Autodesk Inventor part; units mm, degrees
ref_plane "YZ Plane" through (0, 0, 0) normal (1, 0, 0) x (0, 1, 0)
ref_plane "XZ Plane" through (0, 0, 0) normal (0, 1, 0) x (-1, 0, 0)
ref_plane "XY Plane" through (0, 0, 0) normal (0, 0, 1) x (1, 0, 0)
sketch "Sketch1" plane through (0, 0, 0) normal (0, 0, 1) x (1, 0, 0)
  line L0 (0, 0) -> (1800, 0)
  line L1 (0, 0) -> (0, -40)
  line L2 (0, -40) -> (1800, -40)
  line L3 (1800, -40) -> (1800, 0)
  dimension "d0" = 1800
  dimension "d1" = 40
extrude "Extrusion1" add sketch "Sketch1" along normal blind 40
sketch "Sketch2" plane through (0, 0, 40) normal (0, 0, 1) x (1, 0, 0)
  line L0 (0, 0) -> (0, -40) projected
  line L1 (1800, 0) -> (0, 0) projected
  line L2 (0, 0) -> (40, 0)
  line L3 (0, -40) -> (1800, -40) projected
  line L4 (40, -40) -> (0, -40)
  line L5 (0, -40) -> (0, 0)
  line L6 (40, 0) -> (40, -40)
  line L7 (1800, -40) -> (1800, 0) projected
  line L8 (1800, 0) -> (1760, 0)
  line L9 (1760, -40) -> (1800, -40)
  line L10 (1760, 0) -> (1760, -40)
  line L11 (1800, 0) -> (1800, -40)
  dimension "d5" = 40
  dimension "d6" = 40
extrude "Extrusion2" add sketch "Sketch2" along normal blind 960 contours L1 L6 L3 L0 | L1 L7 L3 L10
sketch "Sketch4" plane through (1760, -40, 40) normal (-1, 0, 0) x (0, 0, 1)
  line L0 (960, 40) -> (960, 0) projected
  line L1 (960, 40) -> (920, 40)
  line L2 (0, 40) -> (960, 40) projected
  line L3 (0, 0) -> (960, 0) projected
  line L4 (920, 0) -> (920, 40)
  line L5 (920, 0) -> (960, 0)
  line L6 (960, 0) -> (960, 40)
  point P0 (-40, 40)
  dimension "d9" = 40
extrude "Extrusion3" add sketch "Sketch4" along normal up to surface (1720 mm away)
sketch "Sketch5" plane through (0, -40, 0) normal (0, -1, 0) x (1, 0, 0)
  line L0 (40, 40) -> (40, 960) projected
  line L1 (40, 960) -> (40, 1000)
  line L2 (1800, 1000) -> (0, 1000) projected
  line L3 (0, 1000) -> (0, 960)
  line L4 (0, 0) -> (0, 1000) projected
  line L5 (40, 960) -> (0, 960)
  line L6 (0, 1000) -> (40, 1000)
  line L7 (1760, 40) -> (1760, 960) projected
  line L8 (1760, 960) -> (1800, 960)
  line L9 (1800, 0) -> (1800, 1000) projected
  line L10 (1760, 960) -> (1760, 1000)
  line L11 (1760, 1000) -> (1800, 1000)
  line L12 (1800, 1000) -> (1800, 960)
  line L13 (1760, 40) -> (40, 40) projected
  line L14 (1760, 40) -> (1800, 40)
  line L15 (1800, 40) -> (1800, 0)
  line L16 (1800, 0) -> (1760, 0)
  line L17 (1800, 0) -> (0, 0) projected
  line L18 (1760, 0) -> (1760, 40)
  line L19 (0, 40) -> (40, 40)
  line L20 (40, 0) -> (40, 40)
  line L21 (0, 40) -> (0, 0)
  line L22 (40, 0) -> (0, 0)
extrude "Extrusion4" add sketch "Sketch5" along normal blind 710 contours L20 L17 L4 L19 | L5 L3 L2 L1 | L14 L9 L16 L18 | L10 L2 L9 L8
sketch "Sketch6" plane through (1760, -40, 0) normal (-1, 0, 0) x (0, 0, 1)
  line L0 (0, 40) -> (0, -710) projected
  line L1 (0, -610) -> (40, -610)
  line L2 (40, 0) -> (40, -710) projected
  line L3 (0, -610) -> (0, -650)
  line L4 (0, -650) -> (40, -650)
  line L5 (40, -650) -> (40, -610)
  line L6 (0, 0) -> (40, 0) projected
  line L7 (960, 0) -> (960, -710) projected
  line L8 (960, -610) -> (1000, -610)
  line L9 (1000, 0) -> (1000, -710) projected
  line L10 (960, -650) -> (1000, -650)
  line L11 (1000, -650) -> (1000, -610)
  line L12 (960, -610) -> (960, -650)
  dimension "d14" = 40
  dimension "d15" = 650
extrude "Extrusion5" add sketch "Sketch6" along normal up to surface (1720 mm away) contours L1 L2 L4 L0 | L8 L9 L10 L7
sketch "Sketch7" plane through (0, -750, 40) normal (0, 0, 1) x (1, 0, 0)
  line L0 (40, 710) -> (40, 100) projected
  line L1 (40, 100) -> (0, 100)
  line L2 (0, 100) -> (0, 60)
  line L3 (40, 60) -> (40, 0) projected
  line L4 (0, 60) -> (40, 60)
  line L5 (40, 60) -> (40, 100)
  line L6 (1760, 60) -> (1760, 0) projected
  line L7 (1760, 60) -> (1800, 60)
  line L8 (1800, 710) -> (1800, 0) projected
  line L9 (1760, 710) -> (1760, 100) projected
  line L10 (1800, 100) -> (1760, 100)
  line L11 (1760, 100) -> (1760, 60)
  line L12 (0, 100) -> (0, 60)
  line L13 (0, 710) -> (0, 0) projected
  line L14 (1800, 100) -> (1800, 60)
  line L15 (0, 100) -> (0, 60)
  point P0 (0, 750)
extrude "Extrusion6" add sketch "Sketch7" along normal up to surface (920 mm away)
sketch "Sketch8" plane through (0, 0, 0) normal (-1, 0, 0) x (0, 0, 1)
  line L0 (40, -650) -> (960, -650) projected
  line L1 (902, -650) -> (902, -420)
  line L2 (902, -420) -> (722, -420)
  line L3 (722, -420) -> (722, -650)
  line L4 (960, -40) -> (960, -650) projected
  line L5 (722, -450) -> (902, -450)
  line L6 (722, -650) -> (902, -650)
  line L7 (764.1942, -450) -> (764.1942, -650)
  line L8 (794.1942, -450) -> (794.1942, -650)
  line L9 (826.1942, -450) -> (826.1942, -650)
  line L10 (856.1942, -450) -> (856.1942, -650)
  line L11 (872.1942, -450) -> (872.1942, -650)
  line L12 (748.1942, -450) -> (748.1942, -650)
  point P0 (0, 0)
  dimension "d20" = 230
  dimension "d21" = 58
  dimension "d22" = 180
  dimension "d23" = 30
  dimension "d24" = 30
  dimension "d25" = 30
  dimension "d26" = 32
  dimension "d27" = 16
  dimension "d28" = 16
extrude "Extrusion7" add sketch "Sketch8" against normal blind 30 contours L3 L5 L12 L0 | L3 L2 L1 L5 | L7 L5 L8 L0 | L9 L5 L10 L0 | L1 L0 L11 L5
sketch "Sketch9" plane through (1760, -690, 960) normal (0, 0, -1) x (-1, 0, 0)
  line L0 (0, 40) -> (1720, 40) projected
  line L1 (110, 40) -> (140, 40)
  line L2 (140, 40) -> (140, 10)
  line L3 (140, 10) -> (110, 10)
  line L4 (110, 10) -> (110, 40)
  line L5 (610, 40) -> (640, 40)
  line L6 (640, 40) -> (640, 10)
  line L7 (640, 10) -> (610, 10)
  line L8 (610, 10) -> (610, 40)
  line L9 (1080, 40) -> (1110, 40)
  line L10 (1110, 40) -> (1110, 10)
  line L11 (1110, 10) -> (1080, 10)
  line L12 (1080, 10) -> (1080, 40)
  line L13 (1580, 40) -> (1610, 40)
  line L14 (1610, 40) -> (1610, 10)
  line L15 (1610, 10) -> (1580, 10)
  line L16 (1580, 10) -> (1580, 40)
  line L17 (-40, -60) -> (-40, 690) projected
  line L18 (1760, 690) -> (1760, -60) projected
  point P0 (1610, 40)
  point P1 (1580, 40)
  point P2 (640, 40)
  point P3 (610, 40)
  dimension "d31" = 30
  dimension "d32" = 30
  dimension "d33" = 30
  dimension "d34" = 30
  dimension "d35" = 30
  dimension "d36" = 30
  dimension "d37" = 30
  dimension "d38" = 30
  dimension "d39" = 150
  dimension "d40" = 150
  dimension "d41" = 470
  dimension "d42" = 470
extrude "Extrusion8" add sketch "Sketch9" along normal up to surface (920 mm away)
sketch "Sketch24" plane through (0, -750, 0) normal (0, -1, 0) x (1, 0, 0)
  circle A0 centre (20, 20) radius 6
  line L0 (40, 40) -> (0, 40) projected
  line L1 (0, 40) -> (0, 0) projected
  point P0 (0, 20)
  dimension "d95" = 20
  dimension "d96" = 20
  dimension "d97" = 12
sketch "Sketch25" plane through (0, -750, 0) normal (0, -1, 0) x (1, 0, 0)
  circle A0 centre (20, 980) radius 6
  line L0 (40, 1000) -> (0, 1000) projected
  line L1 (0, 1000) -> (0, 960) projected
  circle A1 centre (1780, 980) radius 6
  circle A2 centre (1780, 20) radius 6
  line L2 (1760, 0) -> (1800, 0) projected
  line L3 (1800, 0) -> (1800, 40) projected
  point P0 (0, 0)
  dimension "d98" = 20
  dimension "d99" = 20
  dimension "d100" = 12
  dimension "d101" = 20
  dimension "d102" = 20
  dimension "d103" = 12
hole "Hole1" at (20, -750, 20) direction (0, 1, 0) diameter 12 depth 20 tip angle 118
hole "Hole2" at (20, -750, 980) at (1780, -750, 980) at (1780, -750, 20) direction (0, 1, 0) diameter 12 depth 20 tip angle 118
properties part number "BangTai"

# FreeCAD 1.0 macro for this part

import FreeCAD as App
import Part
import Sketcher


def add_polygon(sketch, points):
    """Adds a closed chain of lines whose ends are joined by coincident constraints."""
    first, n = sketch.GeometryCount, len(points)
    for a, b in zip(points, points[1:] + points[:1]):
        sketch.addGeometry(Part.LineSegment(App.Vector(*a, 0), App.Vector(*b, 0)), False)
    for i in range(n):
        sketch.addConstraint(Sketcher.Constraint("Coincident", first + i, 2, first + (i + 1) % n, 1))

doc = App.newDocument("Part")
body = doc.addObject("PartDesign::Body", "Body")

# Sketch on XY plane
sketch1 = body.newObject("Sketcher::SketchObject", "Sketch")
sketch1.AttachmentSupport = (doc.getObject("XY_Plane"), [""])
sketch1.MapMode = "FlatFace"
add_polygon(sketch1, [(1800, 0), (0, 0), (0, -40), (1800, -40)])  # lines 0-3
sketch1.addConstraint(Sketcher.Constraint("Horizontal", 0))
sketch1.addConstraint(Sketcher.Constraint("Vertical", 1))
sketch1.addConstraint(Sketcher.Constraint("Horizontal", 2))
sketch1.addConstraint(Sketcher.Constraint("Vertical", 3))
sketch1.addConstraint(Sketcher.Constraint("Coincident", 0, 2, -1, 1))
sketch1.addConstraint(Sketcher.Constraint("DistanceX", 0, 2, 0, 1, 1800.0))
sketch1.addConstraint(Sketcher.Constraint("DistanceY", 1, 2, 1, 1, 40.0))
pad1 = body.newObject("PartDesign::Pad", "Pad")
pad1.Profile = sketch1
pad1.Length = 40

# Sketch on XY plane
sketch2 = body.newObject("Sketcher::SketchObject", "Sketch001")
sketch2.AttachmentSupport = (doc.getObject("XY_Plane"), [""])
sketch2.MapMode = "FlatFace"
sketch2.AttachmentOffset = App.Placement(App.Vector(0, 0, 40), App.Rotation())
add_polygon(sketch2, [(40, 0), (0, 0), (0, -40), (40, -40)])  # lines 0-3
add_polygon(sketch2, [(1800, 0), (1760, 0), (1760, -40), (1800, -40)])  # lines 4-7
sketch2.addConstraint(Sketcher.Constraint("Horizontal", 0))
sketch2.addConstraint(Sketcher.Constraint("Vertical", 1))
sketch2.addConstraint(Sketcher.Constraint("Horizontal", 2))
sketch2.addConstraint(Sketcher.Constraint("Vertical", 3))
sketch2.addConstraint(Sketcher.Constraint("Horizontal", 4))
sketch2.addConstraint(Sketcher.Constraint("Vertical", 5))
sketch2.addConstraint(Sketcher.Constraint("Horizontal", 6))
sketch2.addConstraint(Sketcher.Constraint("Vertical", 7))
sketch2.addConstraint(Sketcher.Constraint("Coincident", 0, 2, -1, 1))
sketch2.addConstraint(Sketcher.Constraint("PointOnObject", 4, 2, -1))
sketch2.addConstraint(Sketcher.Constraint("Horizontal", 2, 2, 5, 2))
sketch2.addConstraint(Sketcher.Constraint("Equal", 2, 4))
sketch2.addConstraint(Sketcher.Constraint("Equal", 6, 1))
sketch2.addConstraint(Sketcher.Constraint("DistanceX", 0, 2, 0, 1, 40.0))
sketch2.addConstraint(Sketcher.Constraint("DistanceX", -1, 1, 4, 2, 1760.0))
pad2 = body.newObject("PartDesign::Pad", "Pad001")
pad2.Profile = sketch2
pad2.Length = 960

# Sketch on YZ plane
sketch3 = body.newObject("Sketcher::SketchObject", "Sketch002")
sketch3.AttachmentSupport = (doc.getObject("YZ_Plane"), [""])
sketch3.MapMode = "FlatFace"
sketch3.AttachmentOffset = App.Placement(App.Vector(0, 0, 1760), App.Rotation())
add_polygon(sketch3, [(-40, 1000), (0, 1000), (0, 960), (-40, 960)])  # lines 0-3
sketch3.addConstraint(Sketcher.Constraint("Horizontal", 0))
sketch3.addConstraint(Sketcher.Constraint("Vertical", 1))
sketch3.addConstraint(Sketcher.Constraint("Horizontal", 2))
sketch3.addConstraint(Sketcher.Constraint("Vertical", 3))
sketch3.addConstraint(Sketcher.Constraint("PointOnObject", 0, 2, -2))
sketch3.addConstraint(Sketcher.Constraint("Equal", 2, 1))
sketch3.addConstraint(Sketcher.Constraint("DistanceX", 0, 1, 0, 2, 40.0))
sketch3.addConstraint(Sketcher.Constraint("DistanceY", -1, 1, 0, 2, 1000.0))
pad3 = body.newObject("PartDesign::Pad", "Pad002")
pad3.Profile = sketch3
pad3.Length = 1720
pad3.Reversed = True

# Sketch on XZ plane
sketch4 = body.newObject("Sketcher::SketchObject", "Sketch003")
sketch4.AttachmentSupport = (doc.getObject("XZ_Plane"), [""])
sketch4.MapMode = "FlatFace"
sketch4.AttachmentOffset = App.Placement(App.Vector(0, 0, 40), App.Rotation())
add_polygon(sketch4, [(40, 0), (40, 40), (0, 40), (0, 0)])  # lines 0-3
add_polygon(sketch4, [(0, 960), (40, 960), (40, 1000), (0, 1000)])  # lines 4-7
add_polygon(sketch4, [(1800, 40), (1760, 40), (1760, 0), (1800, 0)])  # lines 8-11
add_polygon(sketch4, [(1760, 1000), (1760, 960), (1800, 960), (1800, 1000)])  # lines 12-15
sketch4.addConstraint(Sketcher.Constraint("Vertical", 0))
sketch4.addConstraint(Sketcher.Constraint("Horizontal", 1))
sketch4.addConstraint(Sketcher.Constraint("Vertical", 2))
sketch4.addConstraint(Sketcher.Constraint("Horizontal", 3))
sketch4.addConstraint(Sketcher.Constraint("Horizontal", 4))
sketch4.addConstraint(Sketcher.Constraint("Vertical", 5))
sketch4.addConstraint(Sketcher.Constraint("Horizontal", 6))
sketch4.addConstraint(Sketcher.Constraint("Vertical", 7))
sketch4.addConstraint(Sketcher.Constraint("Horizontal", 8))
sketch4.addConstraint(Sketcher.Constraint("Vertical", 9))
sketch4.addConstraint(Sketcher.Constraint("Horizontal", 10))
sketch4.addConstraint(Sketcher.Constraint("Vertical", 11))
sketch4.addConstraint(Sketcher.Constraint("Vertical", 12))
sketch4.addConstraint(Sketcher.Constraint("Horizontal", 13))
sketch4.addConstraint(Sketcher.Constraint("Vertical", 14))
sketch4.addConstraint(Sketcher.Constraint("Horizontal", 15))
sketch4.addConstraint(Sketcher.Constraint("Coincident", 2, 2, -1, 1))
sketch4.addConstraint(Sketcher.Constraint("PointOnObject", 6, 2, -2))
sketch4.addConstraint(Sketcher.Constraint("PointOnObject", 9, 2, -1))
sketch4.addConstraint(Sketcher.Constraint("Horizontal", 1, 2, 8, 2))
sketch4.addConstraint(Sketcher.Constraint("Horizontal", 7, 2, 12, 2))
sketch4.addConstraint(Sketcher.Constraint("Horizontal", 6, 2, 14, 2))
sketch4.addConstraint(Sketcher.Constraint("Vertical", 3, 2, 4, 2))
sketch4.addConstraint(Sketcher.Constraint("Vertical", 9, 2, 12, 2))
sketch4.addConstraint(Sketcher.Constraint("Vertical", 11, 2, 13, 2))
sketch4.addConstraint(Sketcher.Constraint("Equal", 6, 8))
sketch4.addConstraint(Sketcher.Constraint("Equal", 15, 0))
sketch4.addConstraint(Sketcher.Constraint("Equal", 2, 5))
sketch4.addConstraint(Sketcher.Constraint("DistanceX", 1, 2, 1, 1, 40.0))
sketch4.addConstraint(Sketcher.Constraint("DistanceY", -1, 1, 4, 2, 960.0))
sketch4.addConstraint(Sketcher.Constraint("DistanceX", -1, 1, 8, 2, 1760.0))
pad4 = body.newObject("PartDesign::Pad", "Pad003")
pad4.Profile = sketch4
pad4.Length = 710

# Sketch on YZ plane
sketch5 = body.newObject("Sketcher::SketchObject", "Sketch004")
sketch5.AttachmentSupport = (doc.getObject("YZ_Plane"), [""])
sketch5.MapMode = "FlatFace"
sketch5.AttachmentOffset = App.Placement(App.Vector(0, 0, 1760), App.Rotation())
add_polygon(sketch5, [(-650, 40), (-650, 0), (-690, 0), (-690, 40)])  # lines 0-3
add_polygon(sketch5, [(-650, 1000), (-650, 960), (-690, 960), (-690, 1000)])  # lines 4-7
sketch5.addConstraint(Sketcher.Constraint("Vertical", 0))
sketch5.addConstraint(Sketcher.Constraint("Horizontal", 1))
sketch5.addConstraint(Sketcher.Constraint("Vertical", 2))
sketch5.addConstraint(Sketcher.Constraint("Horizontal", 3))
sketch5.addConstraint(Sketcher.Constraint("Vertical", 4))
sketch5.addConstraint(Sketcher.Constraint("Horizontal", 5))
sketch5.addConstraint(Sketcher.Constraint("Vertical", 6))
sketch5.addConstraint(Sketcher.Constraint("Horizontal", 7))
sketch5.addConstraint(Sketcher.Constraint("PointOnObject", 0, 2, -1))
sketch5.addConstraint(Sketcher.Constraint("Vertical", 3, 2, 4, 2))
sketch5.addConstraint(Sketcher.Constraint("Vertical", 2, 2, 5, 2))
sketch5.addConstraint(Sketcher.Constraint("Equal", 7, 0))
sketch5.addConstraint(Sketcher.Constraint("Equal", 2, 4))
sketch5.addConstraint(Sketcher.Constraint("DistanceX", 1, 2, 1, 1, 40.0))
sketch5.addConstraint(Sketcher.Constraint("DistanceX", 0, 2, -1, 1, 650.0))
sketch5.addConstraint(Sketcher.Constraint("DistanceY", -1, 1, 4, 2, 960.0))
pad5 = body.newObject("PartDesign::Pad", "Pad004")
pad5.Profile = sketch5
pad5.Length = 1720
pad5.Reversed = True

# Sketch on XY plane
sketch6 = body.newObject("Sketcher::SketchObject", "Sketch005")
sketch6.AttachmentSupport = (doc.getObject("XY_Plane"), [""])
sketch6.MapMode = "FlatFace"
sketch6.AttachmentOffset = App.Placement(App.Vector(0, 0, 40), App.Rotation())
add_polygon(sketch6, [(40, -690), (40, -650), (0, -650), (0, -690)])  # lines 0-3
add_polygon(sketch6, [(1760, -650), (1760, -690), (1800, -690), (1800, -650)])  # lines 4-7
sketch6.addConstraint(Sketcher.Constraint("Vertical", 0))
sketch6.addConstraint(Sketcher.Constraint("Horizontal", 1))
sketch6.addConstraint(Sketcher.Constraint("Vertical", 2))
sketch6.addConstraint(Sketcher.Constraint("Horizontal", 3))
sketch6.addConstraint(Sketcher.Constraint("Vertical", 4))
sketch6.addConstraint(Sketcher.Constraint("Horizontal", 5))
sketch6.addConstraint(Sketcher.Constraint("Vertical", 6))
sketch6.addConstraint(Sketcher.Constraint("Horizontal", 7))
sketch6.addConstraint(Sketcher.Constraint("PointOnObject", 1, 2, -2))
sketch6.addConstraint(Sketcher.Constraint("Horizontal", 3, 2, 4, 2))
sketch6.addConstraint(Sketcher.Constraint("Horizontal", 1, 2, 6, 2))
sketch6.addConstraint(Sketcher.Constraint("Equal", 3, 5))
sketch6.addConstraint(Sketcher.Constraint("Equal", 7, 0))
sketch6.addConstraint(Sketcher.Constraint("DistanceX", 1, 2, 1, 1, 40.0))
sketch6.addConstraint(Sketcher.Constraint("DistanceY", 0, 2, -1, 1, 650.0))
sketch6.addConstraint(Sketcher.Constraint("DistanceX", -1, 1, 4, 2, 1760.0))
pad6 = body.newObject("PartDesign::Pad", "Pad005")
pad6.Profile = sketch6
pad6.Length = 920

# Sketch on YZ plane
sketch7 = body.newObject("Sketcher::SketchObject", "Sketch006")
sketch7.AttachmentSupport = (doc.getObject("YZ_Plane"), [""])
sketch7.MapMode = "FlatFace"
add_polygon(sketch7, [(-650, 722), (-650, 748), (-450, 748), (-450, 764), (-650, 764), (-650, 794), (-450, 794), (-450, 826), (-650, 826), (-650, 856), (-450, 856), (-450, 872), (-650, 872), (-650, 902), (-420, 902), (-420, 722)])  # lines 0-15
sketch7.addConstraint(Sketcher.Constraint("Vertical", 0))
sketch7.addConstraint(Sketcher.Constraint("Horizontal", 1))
sketch7.addConstraint(Sketcher.Constraint("Vertical", 2))
sketch7.addConstraint(Sketcher.Constraint("Horizontal", 3))
sketch7.addConstraint(Sketcher.Constraint("Vertical", 4))
sketch7.addConstraint(Sketcher.Constraint("Horizontal", 5))
sketch7.addConstraint(Sketcher.Constraint("Vertical", 6))
sketch7.addConstraint(Sketcher.Constraint("Horizontal", 7))
sketch7.addConstraint(Sketcher.Constraint("Vertical", 8))
sketch7.addConstraint(Sketcher.Constraint("Horizontal", 9))
sketch7.addConstraint(Sketcher.Constraint("Vertical", 10))
sketch7.addConstraint(Sketcher.Constraint("Horizontal", 11))
sketch7.addConstraint(Sketcher.Constraint("Vertical", 12))
sketch7.addConstraint(Sketcher.Constraint("Horizontal", 13))
sketch7.addConstraint(Sketcher.Constraint("Vertical", 14))
sketch7.addConstraint(Sketcher.Constraint("Horizontal", 15))
sketch7.addConstraint(Sketcher.Constraint("Vertical", 0, 2, 3, 2))
sketch7.addConstraint(Sketcher.Constraint("Vertical", 2, 2, 5, 2))
sketch7.addConstraint(Sketcher.Constraint("Vertical", 4, 2, 7, 2))
sketch7.addConstraint(Sketcher.Constraint("Vertical", 6, 2, 9, 2))
sketch7.addConstraint(Sketcher.Constraint("Vertical", 8, 2, 11, 2))
sketch7.addConstraint(Sketcher.Constraint("Equal", 4, 8))
sketch7.addConstraint(Sketcher.Constraint("Equal", 2, 10))
sketch7.addConstraint(Sketcher.Constraint("DistanceX", 13, 1, 13, 2, 230.0))
sketch7.addConstraint(Sketcher.Constraint("DistanceY", 2, 1, 2, 2, 16.0))
sketch7.addConstraint(Sketcher.Constraint("DistanceY", 4, 1, 4, 2, 30.0))
sketch7.addConstraint(Sketcher.Constraint("DistanceY", 6, 1, 6, 2, 32.0))
sketch7.addConstraint(Sketcher.Constraint("DistanceY", 14, 2, 14, 1, 180.0))
sketch7.addConstraint(Sketcher.Constraint("DistanceX", 10, 2, 13, 2, 30.0))
sketch7.addConstraint(Sketcher.Constraint("DistanceX", 0, 2, -1, 1, 650.0))
sketch7.addConstraint(Sketcher.Constraint("DistanceY", -1, 1, 12, 2, 902.0))
sketch7.addConstraint(Sketcher.Constraint("DistanceY", 0, 1, 0, 2, 26.1942))
pad7 = body.newObject("PartDesign::Pad", "Pad006")
pad7.Profile = sketch7
pad7.Length = 30

# Sketch on XY plane
sketch8 = body.newObject("Sketcher::SketchObject", "Sketch007")
sketch8.AttachmentSupport = (doc.getObject("XY_Plane"), [""])
sketch8.MapMode = "FlatFace"
sketch8.AttachmentOffset = App.Placement(App.Vector(0, 0, 960), App.Rotation())
add_polygon(sketch8, [(150, -650), (180, -650), (180, -680), (150, -680)])  # lines 0-3
add_polygon(sketch8, [(650, -650), (680, -650), (680, -680), (650, -680)])  # lines 4-7
add_polygon(sketch8, [(1120, -650), (1150, -650), (1150, -680), (1120, -680)])  # lines 8-11
add_polygon(sketch8, [(1620, -650), (1650, -650), (1650, -680), (1620, -680)])  # lines 12-15
sketch8.addConstraint(Sketcher.Constraint("Horizontal", 0))
sketch8.addConstraint(Sketcher.Constraint("Vertical", 1))
sketch8.addConstraint(Sketcher.Constraint("Horizontal", 2))
sketch8.addConstraint(Sketcher.Constraint("Vertical", 3))
sketch8.addConstraint(Sketcher.Constraint("Horizontal", 4))
sketch8.addConstraint(Sketcher.Constraint("Vertical", 5))
sketch8.addConstraint(Sketcher.Constraint("Horizontal", 6))
sketch8.addConstraint(Sketcher.Constraint("Vertical", 7))
sketch8.addConstraint(Sketcher.Constraint("Horizontal", 8))
sketch8.addConstraint(Sketcher.Constraint("Vertical", 9))
sketch8.addConstraint(Sketcher.Constraint("Horizontal", 10))
sketch8.addConstraint(Sketcher.Constraint("Vertical", 11))
sketch8.addConstraint(Sketcher.Constraint("Horizontal", 12))
sketch8.addConstraint(Sketcher.Constraint("Vertical", 13))
sketch8.addConstraint(Sketcher.Constraint("Horizontal", 14))
sketch8.addConstraint(Sketcher.Constraint("Vertical", 15))
sketch8.addConstraint(Sketcher.Constraint("Horizontal", 3, 2, 4, 2))
sketch8.addConstraint(Sketcher.Constraint("Horizontal", 2, 2, 5, 2))
sketch8.addConstraint(Sketcher.Constraint("Horizontal", 7, 2, 8, 2))
sketch8.addConstraint(Sketcher.Constraint("Horizontal", 6, 2, 9, 2))
sketch8.addConstraint(Sketcher.Constraint("Horizontal", 11, 2, 12, 2))
sketch8.addConstraint(Sketcher.Constraint("Horizontal", 10, 2, 13, 2))
sketch8.addConstraint(Sketcher.Constraint("Equal", 2, 4))
sketch8.addConstraint(Sketcher.Constraint("Equal", 6, 8))
sketch8.addConstraint(Sketcher.Constraint("Equal", 10, 12))
sketch8.addConstraint(Sketcher.Constraint("Equal", 14, 1))
sketch8.addConstraint(Sketcher.Constraint("DistanceX", 0, 1, 0, 2, 30.0))
sketch8.addConstraint(Sketcher.Constraint("DistanceX", -1, 1, 2, 2, 150.0))
sketch8.addConstraint(Sketcher.Constraint("DistanceX", 1, 2, 6, 2, 470.0))
sketch8.addConstraint(Sketcher.Constraint("DistanceX", 4, 2, 8, 2, 470.0))
sketch8.addConstraint(Sketcher.Constraint("DistanceX", 9, 2, 14, 2, 470.0))
sketch8.addConstraint(Sketcher.Constraint("DistanceY", 0, 2, -1, 1, 650.0))
pad8 = body.newObject("PartDesign::Pad", "Pad007")
pad8.Profile = sketch8
pad8.Length = 920
pad8.Reversed = True

# Sketch on XZ plane
sketch9 = body.newObject("Sketcher::SketchObject", "Sketch008")
sketch9.AttachmentSupport = (doc.getObject("XZ_Plane"), [""])
sketch9.MapMode = "FlatFace"
sketch9.AttachmentOffset = App.Placement(App.Vector(0, 0, 750), App.Rotation())
sketch9.addGeometry(Part.Circle(App.Vector(20, 20, 0), App.Vector(0, 0, 1), 6), False)
sketch9.addConstraint(Sketcher.Constraint("Diameter", 0, 12.0))
sketch9.addConstraint(Sketcher.Constraint("DistanceX", -1, 1, 0, 3, 20.0))
sketch9.addConstraint(Sketcher.Constraint("DistanceY", -1, 1, 0, 3, 20.0))
doc.recompute()
hole = body.newObject("PartDesign::Hole", "Hole")
hole.Profile = sketch9
hole.ThreadType = "None"
hole.Diameter = 12
hole.DepthType = "Dimension"
hole.Depth = 20
hole.DrillPoint = "Angled"
hole.DrillPointAngle = 118

# Sketch on XZ plane
sketch10 = body.newObject("Sketcher::SketchObject", "Sketch009")
sketch10.AttachmentSupport = (doc.getObject("XZ_Plane"), [""])
sketch10.MapMode = "FlatFace"
sketch10.AttachmentOffset = App.Placement(App.Vector(0, 0, 750), App.Rotation())
sketch10.addGeometry(Part.Circle(App.Vector(20, 980, 0), App.Vector(0, 0, 1), 6), False)
sketch10.addGeometry(Part.Circle(App.Vector(1780, 980, 0), App.Vector(0, 0, 1), 6), False)
sketch10.addGeometry(Part.Circle(App.Vector(1780, 20, 0), App.Vector(0, 0, 1), 6), False)
sketch10.addConstraint(Sketcher.Constraint("Equal", 0, 1))
sketch10.addConstraint(Sketcher.Constraint("Equal", 1, 2))
sketch10.addConstraint(Sketcher.Constraint("Horizontal", 0, 3, 1, 3))
sketch10.addConstraint(Sketcher.Constraint("Vertical", 1, 3, 2, 3))
sketch10.addConstraint(Sketcher.Constraint("Diameter", 0, 12.0))
sketch10.addConstraint(Sketcher.Constraint("DistanceX", -1, 1, 0, 3, 20.0))
sketch10.addConstraint(Sketcher.Constraint("DistanceY", -1, 1, 0, 3, 980.0))
sketch10.addConstraint(Sketcher.Constraint("DistanceX", -1, 1, 1, 3, 1780.0))
sketch10.addConstraint(Sketcher.Constraint("DistanceY", -1, 1, 2, 3, 20.0))
doc.recompute()
hole2 = body.newObject("PartDesign::Hole", "Hole001")
hole2.Profile = sketch10
hole2.ThreadType = "None"
hole2.Diameter = 12
hole2.DepthType = "Dimension"
hole2.Depth = 20
hole2.DrillPoint = "Angled"
hole2.DrillPointAngle = 118

doc.recompute()
